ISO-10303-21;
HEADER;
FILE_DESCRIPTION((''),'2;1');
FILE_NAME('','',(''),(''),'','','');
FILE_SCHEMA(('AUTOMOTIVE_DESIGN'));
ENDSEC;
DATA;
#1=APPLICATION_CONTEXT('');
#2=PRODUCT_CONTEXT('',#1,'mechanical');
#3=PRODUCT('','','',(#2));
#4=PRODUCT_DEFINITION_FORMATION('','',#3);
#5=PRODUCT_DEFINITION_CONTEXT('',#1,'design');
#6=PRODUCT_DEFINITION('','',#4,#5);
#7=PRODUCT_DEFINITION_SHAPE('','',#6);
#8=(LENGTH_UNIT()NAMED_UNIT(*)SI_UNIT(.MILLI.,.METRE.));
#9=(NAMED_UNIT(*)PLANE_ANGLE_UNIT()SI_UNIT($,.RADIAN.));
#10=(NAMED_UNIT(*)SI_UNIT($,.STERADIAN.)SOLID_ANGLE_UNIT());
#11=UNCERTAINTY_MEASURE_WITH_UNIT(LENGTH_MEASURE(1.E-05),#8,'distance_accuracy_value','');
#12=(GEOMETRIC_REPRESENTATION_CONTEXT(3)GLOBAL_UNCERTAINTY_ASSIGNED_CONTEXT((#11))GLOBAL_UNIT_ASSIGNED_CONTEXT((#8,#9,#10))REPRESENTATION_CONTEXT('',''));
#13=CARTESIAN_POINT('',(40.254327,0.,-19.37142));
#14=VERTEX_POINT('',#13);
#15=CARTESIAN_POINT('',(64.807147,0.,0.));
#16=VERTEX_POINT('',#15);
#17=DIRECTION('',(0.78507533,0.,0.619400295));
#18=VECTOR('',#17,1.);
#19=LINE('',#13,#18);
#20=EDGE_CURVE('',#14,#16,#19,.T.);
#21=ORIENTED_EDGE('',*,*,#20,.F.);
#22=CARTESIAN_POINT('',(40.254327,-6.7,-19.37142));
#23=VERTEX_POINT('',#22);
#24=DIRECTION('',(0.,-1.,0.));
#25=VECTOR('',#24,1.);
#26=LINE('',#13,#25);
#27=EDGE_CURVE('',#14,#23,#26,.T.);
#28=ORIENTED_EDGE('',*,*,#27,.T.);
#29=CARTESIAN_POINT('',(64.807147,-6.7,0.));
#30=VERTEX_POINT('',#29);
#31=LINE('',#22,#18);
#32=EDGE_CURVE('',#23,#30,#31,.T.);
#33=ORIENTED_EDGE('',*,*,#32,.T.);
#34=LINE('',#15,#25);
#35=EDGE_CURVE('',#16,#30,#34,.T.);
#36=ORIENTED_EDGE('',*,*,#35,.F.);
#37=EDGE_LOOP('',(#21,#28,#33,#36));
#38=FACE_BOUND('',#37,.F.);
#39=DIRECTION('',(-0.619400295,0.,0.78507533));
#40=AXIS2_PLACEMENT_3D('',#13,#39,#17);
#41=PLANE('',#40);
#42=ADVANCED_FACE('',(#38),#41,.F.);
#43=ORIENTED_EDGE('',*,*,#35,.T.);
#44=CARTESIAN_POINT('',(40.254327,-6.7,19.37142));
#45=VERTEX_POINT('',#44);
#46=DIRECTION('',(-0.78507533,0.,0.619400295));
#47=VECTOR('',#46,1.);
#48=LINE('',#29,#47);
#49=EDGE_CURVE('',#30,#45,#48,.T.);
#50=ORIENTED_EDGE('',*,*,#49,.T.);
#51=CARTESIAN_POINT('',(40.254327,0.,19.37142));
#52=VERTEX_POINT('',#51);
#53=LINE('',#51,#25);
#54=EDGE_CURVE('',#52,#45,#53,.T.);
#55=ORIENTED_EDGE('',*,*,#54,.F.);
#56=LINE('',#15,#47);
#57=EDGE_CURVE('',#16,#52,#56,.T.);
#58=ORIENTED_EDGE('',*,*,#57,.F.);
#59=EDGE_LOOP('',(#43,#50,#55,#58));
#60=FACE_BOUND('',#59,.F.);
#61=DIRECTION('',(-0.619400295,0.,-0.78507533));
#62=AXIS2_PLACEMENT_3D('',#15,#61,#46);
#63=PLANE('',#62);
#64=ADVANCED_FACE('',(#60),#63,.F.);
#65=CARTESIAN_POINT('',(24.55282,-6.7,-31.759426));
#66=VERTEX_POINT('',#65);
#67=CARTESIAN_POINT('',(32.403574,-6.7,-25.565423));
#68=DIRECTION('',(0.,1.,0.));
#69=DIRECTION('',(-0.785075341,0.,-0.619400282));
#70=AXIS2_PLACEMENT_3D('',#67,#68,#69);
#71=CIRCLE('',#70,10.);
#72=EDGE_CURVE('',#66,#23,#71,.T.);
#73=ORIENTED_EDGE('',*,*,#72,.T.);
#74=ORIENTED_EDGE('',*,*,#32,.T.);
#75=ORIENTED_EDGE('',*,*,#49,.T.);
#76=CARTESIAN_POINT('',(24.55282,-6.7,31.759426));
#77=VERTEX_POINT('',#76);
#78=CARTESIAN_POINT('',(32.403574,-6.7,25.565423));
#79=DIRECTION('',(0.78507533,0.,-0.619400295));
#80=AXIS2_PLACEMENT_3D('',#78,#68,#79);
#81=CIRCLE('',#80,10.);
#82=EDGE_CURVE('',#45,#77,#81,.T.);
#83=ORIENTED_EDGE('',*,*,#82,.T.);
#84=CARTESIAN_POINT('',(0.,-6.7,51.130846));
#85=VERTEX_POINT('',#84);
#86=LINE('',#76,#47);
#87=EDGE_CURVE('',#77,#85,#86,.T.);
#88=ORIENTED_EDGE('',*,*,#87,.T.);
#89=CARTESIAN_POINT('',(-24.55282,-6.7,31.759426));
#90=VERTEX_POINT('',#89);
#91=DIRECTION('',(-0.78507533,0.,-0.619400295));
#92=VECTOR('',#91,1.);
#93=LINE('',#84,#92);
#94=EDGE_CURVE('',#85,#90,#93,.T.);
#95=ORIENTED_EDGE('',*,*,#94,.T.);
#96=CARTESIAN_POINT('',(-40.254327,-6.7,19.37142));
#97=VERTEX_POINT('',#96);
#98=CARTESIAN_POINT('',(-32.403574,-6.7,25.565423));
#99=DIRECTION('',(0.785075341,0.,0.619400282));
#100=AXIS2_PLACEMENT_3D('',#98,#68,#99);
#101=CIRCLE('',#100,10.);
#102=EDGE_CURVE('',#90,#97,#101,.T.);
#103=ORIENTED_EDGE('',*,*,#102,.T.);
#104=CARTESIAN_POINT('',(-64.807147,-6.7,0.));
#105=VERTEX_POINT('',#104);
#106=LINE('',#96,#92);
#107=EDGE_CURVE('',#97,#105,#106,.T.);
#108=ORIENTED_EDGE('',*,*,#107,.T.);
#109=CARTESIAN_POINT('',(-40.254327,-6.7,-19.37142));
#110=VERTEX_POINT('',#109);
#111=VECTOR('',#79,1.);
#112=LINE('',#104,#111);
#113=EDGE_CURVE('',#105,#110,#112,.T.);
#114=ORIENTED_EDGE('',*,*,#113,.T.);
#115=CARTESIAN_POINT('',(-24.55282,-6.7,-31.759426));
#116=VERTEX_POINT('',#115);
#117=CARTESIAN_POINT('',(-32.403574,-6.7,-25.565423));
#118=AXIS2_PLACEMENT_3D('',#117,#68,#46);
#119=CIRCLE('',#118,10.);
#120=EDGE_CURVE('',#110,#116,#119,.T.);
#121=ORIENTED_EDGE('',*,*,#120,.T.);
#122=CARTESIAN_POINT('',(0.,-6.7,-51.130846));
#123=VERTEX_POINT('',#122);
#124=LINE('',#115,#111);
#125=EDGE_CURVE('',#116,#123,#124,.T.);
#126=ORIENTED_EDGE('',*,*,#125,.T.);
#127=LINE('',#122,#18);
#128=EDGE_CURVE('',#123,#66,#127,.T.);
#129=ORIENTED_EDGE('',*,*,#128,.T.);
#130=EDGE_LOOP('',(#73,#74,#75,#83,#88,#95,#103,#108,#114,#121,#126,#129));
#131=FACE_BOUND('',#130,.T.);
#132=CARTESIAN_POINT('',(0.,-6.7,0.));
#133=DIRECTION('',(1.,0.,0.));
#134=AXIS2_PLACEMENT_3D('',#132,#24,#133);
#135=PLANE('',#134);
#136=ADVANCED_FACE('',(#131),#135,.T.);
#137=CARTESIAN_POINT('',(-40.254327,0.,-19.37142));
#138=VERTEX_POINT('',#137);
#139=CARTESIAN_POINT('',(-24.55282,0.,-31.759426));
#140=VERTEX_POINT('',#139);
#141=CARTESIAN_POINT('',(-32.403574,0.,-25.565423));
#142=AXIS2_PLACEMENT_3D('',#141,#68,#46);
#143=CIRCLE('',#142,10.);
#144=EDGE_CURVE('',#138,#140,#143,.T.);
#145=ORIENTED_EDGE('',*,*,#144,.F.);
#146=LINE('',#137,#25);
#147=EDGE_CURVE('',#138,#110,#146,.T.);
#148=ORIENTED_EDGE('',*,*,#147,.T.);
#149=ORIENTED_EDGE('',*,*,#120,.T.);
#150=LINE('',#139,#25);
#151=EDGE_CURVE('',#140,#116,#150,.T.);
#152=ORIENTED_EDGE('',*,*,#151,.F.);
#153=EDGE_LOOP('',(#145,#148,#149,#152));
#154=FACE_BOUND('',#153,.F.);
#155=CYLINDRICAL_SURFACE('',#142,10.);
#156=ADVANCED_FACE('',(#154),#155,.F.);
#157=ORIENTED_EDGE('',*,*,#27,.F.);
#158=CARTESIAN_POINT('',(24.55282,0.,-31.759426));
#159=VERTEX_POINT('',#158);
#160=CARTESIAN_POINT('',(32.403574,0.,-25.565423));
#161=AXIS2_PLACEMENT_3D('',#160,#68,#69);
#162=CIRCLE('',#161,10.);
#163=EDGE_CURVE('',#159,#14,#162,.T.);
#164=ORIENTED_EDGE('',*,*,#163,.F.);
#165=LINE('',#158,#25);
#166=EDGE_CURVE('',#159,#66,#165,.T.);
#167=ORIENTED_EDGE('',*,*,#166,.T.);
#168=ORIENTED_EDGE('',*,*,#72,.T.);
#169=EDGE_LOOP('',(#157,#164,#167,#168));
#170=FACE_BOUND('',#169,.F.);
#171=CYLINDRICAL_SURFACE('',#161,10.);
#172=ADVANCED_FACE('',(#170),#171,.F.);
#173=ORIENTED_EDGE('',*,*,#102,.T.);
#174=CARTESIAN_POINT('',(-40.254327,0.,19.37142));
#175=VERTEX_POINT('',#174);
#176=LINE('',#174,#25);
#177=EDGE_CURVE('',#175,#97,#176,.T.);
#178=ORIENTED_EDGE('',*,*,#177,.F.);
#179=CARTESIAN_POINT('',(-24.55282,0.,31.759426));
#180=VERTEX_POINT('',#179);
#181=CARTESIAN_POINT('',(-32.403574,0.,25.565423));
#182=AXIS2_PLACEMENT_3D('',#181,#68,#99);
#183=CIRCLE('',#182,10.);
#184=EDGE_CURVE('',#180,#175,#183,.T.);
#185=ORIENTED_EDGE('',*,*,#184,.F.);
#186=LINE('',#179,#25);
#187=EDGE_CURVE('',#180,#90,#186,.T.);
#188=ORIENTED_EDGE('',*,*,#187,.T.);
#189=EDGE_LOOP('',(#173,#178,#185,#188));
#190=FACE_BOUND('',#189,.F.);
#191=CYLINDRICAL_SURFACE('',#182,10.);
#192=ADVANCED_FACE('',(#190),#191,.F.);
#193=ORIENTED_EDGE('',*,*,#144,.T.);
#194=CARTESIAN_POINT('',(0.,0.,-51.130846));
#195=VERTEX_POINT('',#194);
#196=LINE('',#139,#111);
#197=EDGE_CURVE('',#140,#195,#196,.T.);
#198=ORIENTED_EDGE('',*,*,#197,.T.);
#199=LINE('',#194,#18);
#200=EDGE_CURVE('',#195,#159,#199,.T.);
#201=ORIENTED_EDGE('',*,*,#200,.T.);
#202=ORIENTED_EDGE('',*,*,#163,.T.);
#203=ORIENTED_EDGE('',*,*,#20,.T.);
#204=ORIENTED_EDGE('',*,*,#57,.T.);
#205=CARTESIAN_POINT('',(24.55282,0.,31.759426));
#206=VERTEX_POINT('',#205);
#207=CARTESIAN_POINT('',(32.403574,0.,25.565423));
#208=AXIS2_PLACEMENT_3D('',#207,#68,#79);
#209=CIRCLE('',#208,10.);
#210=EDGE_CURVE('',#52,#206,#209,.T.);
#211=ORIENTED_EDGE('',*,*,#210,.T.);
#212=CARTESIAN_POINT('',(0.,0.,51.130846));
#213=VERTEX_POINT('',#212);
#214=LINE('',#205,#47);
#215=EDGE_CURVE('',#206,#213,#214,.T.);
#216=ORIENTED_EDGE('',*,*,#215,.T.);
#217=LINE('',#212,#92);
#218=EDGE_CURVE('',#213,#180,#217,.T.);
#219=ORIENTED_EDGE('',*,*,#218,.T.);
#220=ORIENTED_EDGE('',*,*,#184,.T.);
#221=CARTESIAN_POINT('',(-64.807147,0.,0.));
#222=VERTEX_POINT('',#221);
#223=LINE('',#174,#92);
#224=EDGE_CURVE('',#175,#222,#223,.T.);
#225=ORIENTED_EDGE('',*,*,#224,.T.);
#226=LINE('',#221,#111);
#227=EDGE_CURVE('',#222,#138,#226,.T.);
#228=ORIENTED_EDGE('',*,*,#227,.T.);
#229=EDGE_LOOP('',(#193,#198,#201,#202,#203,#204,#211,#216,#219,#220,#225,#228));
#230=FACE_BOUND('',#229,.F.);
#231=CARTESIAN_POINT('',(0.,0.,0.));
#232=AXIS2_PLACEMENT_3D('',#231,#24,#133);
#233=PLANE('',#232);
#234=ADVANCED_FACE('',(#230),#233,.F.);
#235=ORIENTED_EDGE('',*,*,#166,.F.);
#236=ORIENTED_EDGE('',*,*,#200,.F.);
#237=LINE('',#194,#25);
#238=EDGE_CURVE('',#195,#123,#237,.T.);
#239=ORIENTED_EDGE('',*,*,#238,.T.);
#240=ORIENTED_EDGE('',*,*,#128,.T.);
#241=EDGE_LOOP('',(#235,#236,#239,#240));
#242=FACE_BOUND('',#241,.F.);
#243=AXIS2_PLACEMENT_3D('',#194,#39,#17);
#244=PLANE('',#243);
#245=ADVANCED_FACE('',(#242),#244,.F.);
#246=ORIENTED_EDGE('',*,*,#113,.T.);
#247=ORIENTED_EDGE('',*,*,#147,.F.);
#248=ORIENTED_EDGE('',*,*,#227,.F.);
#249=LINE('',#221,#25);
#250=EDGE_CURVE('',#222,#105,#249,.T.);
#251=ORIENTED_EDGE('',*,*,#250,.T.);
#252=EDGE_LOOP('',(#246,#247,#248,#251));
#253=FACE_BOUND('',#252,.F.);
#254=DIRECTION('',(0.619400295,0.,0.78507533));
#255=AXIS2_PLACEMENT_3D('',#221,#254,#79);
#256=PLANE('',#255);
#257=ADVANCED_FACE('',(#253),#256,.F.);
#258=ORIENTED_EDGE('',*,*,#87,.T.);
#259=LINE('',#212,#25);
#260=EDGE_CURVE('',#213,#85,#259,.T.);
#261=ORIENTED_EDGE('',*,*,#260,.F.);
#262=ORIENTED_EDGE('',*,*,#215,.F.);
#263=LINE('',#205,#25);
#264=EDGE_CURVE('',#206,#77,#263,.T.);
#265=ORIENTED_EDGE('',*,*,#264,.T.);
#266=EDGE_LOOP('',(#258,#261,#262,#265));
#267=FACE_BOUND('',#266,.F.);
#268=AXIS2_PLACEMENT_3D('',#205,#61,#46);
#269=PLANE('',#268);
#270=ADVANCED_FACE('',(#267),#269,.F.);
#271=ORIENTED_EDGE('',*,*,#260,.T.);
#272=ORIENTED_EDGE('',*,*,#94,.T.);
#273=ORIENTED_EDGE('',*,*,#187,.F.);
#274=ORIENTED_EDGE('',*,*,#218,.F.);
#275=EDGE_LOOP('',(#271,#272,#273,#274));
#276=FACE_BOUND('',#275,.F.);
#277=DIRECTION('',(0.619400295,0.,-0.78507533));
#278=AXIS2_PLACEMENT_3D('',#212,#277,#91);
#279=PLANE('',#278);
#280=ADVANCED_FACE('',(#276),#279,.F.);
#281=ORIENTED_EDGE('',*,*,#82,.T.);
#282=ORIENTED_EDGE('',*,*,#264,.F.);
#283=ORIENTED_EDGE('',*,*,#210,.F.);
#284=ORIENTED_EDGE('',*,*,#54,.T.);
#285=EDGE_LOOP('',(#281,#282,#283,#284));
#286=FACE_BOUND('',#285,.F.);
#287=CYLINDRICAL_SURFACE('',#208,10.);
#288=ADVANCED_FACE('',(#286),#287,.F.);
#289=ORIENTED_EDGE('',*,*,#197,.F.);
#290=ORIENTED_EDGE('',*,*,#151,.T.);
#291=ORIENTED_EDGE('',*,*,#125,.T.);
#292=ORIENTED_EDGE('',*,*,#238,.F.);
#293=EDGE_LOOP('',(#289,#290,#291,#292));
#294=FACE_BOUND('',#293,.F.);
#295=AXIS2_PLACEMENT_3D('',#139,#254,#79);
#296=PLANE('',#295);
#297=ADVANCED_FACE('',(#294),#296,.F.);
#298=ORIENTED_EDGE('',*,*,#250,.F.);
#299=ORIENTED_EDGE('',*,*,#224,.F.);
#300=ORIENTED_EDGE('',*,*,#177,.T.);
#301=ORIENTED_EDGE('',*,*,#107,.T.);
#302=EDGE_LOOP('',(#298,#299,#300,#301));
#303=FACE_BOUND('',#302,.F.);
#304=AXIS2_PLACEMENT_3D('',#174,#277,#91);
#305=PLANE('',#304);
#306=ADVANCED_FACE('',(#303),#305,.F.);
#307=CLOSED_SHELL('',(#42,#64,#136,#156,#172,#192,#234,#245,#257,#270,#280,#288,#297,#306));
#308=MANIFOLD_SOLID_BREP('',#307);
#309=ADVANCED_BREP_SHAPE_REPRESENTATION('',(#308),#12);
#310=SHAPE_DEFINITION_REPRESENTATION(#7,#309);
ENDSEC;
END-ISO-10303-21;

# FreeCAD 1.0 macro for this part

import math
import FreeCAD as App
import Part
import Sketcher
from FreeCAD import Vector

doc = App.newDocument("Part")
params = doc.addObject("Spreadsheet::Sheet", "Params")
for row, (alias, value) in enumerate([
    ("sketch1_radius", "10 mm"),
    ("pad1_length", "6.7 mm"),
], start=1):
    params.set(f"A{row}", alias)
    params.set(f"B{row}", "=" + value)
    params.setAlias(f"B{row}", alias)

body = doc.addObject("PartDesign::Body", "Body")

sketch1 = body.newObject("Sketcher::SketchObject", "Sketch")
sketch1.AttachmentSupport = (doc.getObject("XZ_Plane"), [""])
sketch1.MapMode = "FlatFace"
sketch1.addGeometry(Part.LineSegment(Vector(25, 32, 0), Vector(0, 51, 0)), False)
sketch1.addGeometry(Part.LineSegment(Vector(0, 51, 0), Vector(-25, 32, 0)), False)
sketch1.addGeometry(Part.ArcOfCircle(Part.Circle(Vector(-32, 26, 0), Vector(0, 0, 1), 10), math.radians(-142), math.radians(38)), False)
sketch1.addGeometry(Part.LineSegment(Vector(-40, 19, 0), Vector(-65, 0, 0)), False)
sketch1.addGeometry(Part.LineSegment(Vector(-65, 0, 0), Vector(-40, -19, 0)), False)
sketch1.addGeometry(Part.ArcOfCircle(Part.Circle(Vector(-32, -26, 0), Vector(0, 0, 1), 10), math.radians(-38), math.radians(142)), False)
sketch1.addGeometry(Part.LineSegment(Vector(-25, -32, 0), Vector(0, -51, 0)), False)
sketch1.addGeometry(Part.LineSegment(Vector(0, -51, 0), Vector(25, -32, 0)), False)
sketch1.addGeometry(Part.ArcOfCircle(Part.Circle(Vector(32, -26, 0), Vector(0, 0, 1), 10), math.radians(38), math.radians(218)), False)
sketch1.addGeometry(Part.LineSegment(Vector(40, -19, 0), Vector(65, 0, 0)), False)
sketch1.addGeometry(Part.LineSegment(Vector(65, 0, 0), Vector(40, 19, 0)), False)
sketch1.addGeometry(Part.ArcOfCircle(Part.Circle(Vector(32, 26, 0), Vector(0, 0, 1), 10), math.radians(142), math.radians(322)), False)
sketch1.addConstraint(Sketcher.Constraint("Coincident", 0, 2, 1, 1))
sketch1.addConstraint(Sketcher.Constraint("Coincident", 1, 2, 2, 2))
sketch1.addConstraint(Sketcher.Constraint("Coincident", 2, 1, 3, 1))
sketch1.addConstraint(Sketcher.Constraint("Coincident", 3, 2, 4, 1))
sketch1.addConstraint(Sketcher.Constraint("Coincident", 4, 2, 5, 2))
sketch1.addConstraint(Sketcher.Constraint("Coincident", 5, 1, 6, 1))
sketch1.addConstraint(Sketcher.Constraint("Coincident", 6, 2, 7, 1))
sketch1.addConstraint(Sketcher.Constraint("Coincident", 7, 2, 8, 2))
sketch1.addConstraint(Sketcher.Constraint("Coincident", 8, 1, 9, 1))
sketch1.addConstraint(Sketcher.Constraint("Coincident", 9, 2, 10, 1))
sketch1.addConstraint(Sketcher.Constraint("Coincident", 10, 2, 11, 2))
sketch1.addConstraint(Sketcher.Constraint("Coincident", 11, 1, 0, 1))
sketch1.addConstraint(Sketcher.Constraint("Equal", 2, 5))
sketch1.addConstraint(Sketcher.Constraint("Equal", 5, 8))
sketch1.addConstraint(Sketcher.Constraint("Equal", 8, 11))
sketch1.addConstraint(Sketcher.Constraint("Symmetric", 2, 3, 8, 3, -1, 1))
sketch1.addConstraint(Sketcher.Constraint("Symmetric", 5, 3, 11, 3, -1, 1))
sketch1.addConstraint(Sketcher.Constraint("Symmetric", 0, 2, 6, 2, -1, 1))
sketch1.addConstraint(Sketcher.Constraint("Symmetric", 3, 2, 9, 2, -1, 1))
sketch1.addConstraint(Sketcher.Constraint("Symmetric", 5, 3, 8, 3, -2))
sketch1.addConstraint(Sketcher.Constraint("PointOnObject", 0, 2, -2))
sketch1.addConstraint(Sketcher.Constraint("PointOnObject", 3, 2, -1))
sketch1.addConstraint(Sketcher.Constraint("Parallel", 1, 3))
sketch1.addConstraint(Sketcher.Constraint("Parallel", 0, 4))
sketch1.addConstraint(Sketcher.Constraint("Parallel", 4, 6))
sketch1.addConstraint(Sketcher.Constraint("Parallel", 3, 7))
sketch1.addConstraint(Sketcher.Constraint("Parallel", 7, 9))
sketch1.addConstraint(Sketcher.Constraint("Parallel", 6, 10))
sketch1.addConstraint(Sketcher.Constraint("Horizontal", 5, 1, 7, 2))
sketch1.addConstraint(Sketcher.Constraint("Equal", 1, 3))
sketch1.addConstraint(Sketcher.Constraint("Radius", 2, 10.0))
sketch1.addConstraint(Sketcher.Constraint("DistanceX", 2, 1, 11, 3, 72.657901))
sketch1.addConstraint(Sketcher.Constraint("DistanceX", 1, 2, -1, 1, 24.55282))
sketch1.addConstraint(Sketcher.Constraint("DistanceY", -1, 1, 2, 1, 19.37142))
sketch1.addConstraint(Sketcher.Constraint("DistanceY", 5, 3, 0, 2, 76.696269))
sketch1.setExpression("Constraints[30]", "Params.sketch1_radius")
pad1 = body.newObject("PartDesign::Pad", "Pad")
pad1.Profile = sketch1
pad1.setExpression("Length", "Params.pad1_length")

doc.recompute()
